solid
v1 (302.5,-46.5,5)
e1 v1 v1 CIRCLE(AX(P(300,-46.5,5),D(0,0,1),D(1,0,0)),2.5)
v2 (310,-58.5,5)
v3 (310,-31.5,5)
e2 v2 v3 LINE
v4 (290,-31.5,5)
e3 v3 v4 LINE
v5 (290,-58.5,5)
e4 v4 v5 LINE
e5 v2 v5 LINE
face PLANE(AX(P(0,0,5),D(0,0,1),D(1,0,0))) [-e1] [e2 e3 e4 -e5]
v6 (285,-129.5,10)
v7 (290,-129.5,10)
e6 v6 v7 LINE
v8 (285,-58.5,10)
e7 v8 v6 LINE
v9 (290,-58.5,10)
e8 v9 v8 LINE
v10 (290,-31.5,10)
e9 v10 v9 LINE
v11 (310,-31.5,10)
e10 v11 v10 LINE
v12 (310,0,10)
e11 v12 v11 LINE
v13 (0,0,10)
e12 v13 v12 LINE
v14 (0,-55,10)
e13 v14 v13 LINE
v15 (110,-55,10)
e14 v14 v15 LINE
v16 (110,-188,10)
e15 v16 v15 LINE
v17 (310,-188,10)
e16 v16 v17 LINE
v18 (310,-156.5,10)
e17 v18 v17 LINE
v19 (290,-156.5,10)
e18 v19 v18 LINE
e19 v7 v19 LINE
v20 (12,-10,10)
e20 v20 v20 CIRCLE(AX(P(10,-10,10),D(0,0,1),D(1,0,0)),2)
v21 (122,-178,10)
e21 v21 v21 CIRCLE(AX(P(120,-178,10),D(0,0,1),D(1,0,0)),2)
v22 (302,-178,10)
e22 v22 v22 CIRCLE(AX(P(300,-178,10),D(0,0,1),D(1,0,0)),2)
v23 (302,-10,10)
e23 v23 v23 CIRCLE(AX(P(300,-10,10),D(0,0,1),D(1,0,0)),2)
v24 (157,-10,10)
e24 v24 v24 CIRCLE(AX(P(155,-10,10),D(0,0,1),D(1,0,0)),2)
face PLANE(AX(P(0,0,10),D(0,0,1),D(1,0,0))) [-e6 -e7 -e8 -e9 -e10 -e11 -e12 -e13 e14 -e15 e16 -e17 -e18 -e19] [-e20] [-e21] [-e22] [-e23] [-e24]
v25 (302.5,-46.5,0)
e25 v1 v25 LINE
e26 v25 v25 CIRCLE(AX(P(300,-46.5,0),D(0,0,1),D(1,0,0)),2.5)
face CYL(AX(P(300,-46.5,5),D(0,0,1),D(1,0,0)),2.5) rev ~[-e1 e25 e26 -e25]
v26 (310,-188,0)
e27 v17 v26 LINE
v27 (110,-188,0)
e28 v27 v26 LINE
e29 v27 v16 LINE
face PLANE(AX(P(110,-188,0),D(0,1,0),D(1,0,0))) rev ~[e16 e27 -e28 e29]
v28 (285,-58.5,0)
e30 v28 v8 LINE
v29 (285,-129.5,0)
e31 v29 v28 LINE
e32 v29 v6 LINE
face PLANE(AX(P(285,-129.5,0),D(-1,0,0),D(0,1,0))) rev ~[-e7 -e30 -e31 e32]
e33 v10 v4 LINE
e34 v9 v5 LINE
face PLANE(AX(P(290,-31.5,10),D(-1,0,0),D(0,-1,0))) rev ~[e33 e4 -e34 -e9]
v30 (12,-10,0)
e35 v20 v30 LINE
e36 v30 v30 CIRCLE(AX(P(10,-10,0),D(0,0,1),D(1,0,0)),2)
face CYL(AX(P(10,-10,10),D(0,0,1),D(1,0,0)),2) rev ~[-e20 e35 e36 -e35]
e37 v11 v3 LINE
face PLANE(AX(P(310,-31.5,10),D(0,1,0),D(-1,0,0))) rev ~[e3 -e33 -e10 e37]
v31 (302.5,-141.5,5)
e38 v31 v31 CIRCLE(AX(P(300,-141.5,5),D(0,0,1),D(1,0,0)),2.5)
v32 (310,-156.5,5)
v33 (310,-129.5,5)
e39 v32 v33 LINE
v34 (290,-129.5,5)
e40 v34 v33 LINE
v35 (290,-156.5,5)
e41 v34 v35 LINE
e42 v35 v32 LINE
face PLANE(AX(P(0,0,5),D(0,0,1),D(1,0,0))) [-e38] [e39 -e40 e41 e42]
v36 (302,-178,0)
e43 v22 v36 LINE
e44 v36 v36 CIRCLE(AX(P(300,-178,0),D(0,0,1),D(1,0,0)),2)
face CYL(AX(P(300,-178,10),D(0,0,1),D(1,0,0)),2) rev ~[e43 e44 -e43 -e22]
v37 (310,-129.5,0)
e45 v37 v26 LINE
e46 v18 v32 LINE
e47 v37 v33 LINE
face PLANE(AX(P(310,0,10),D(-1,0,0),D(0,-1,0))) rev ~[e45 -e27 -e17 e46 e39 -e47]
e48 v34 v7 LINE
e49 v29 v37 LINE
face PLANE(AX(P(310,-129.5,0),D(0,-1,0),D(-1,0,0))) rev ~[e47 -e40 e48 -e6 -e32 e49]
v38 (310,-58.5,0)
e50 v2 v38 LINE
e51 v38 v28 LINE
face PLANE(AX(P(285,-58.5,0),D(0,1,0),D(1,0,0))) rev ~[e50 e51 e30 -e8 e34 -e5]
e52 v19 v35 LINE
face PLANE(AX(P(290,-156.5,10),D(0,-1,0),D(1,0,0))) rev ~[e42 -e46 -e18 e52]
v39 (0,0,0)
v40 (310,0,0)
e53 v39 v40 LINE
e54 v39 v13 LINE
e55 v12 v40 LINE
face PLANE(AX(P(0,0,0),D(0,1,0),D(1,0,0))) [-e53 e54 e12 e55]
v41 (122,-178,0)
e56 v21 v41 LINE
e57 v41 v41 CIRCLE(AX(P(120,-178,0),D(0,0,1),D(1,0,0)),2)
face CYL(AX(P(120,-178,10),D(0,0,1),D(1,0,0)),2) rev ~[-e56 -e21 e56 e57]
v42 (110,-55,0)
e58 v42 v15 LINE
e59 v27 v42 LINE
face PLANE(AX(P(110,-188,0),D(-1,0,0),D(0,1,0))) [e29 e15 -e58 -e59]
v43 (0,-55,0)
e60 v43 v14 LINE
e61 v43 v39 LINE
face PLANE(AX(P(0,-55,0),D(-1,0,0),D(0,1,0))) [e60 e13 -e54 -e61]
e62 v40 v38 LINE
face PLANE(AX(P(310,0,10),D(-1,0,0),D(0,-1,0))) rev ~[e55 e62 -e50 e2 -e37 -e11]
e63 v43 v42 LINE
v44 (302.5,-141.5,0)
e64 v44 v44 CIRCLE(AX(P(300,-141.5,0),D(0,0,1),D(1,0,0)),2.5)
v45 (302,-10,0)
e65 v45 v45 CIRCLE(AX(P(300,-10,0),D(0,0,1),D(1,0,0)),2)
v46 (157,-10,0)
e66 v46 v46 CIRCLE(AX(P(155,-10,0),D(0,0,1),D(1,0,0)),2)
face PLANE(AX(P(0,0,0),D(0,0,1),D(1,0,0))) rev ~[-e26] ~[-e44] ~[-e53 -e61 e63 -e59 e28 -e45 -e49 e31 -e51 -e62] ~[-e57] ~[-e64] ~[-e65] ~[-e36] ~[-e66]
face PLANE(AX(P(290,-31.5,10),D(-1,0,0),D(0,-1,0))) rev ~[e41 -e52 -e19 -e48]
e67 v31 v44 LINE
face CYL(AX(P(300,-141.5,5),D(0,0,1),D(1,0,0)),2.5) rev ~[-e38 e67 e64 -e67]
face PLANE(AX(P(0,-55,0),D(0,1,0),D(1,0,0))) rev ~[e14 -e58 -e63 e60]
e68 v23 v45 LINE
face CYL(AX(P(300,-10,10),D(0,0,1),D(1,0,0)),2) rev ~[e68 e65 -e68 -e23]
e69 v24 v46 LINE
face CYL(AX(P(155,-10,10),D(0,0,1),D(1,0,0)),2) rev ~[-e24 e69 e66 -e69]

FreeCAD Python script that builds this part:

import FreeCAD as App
import Part
import Sketcher
Q = App.Units.Quantity


def add_polygon(sketch, points):
    """Adds a closed chain of lines whose ends are joined by coincident constraints."""
    first, n = sketch.GeometryCount, len(points)
    for a, b in zip(points, points[1:] + points[:1]):
        sketch.addGeometry(Part.LineSegment(App.Vector(*a, 0), App.Vector(*b, 0)), False)
    for i in range(n):
        sketch.addConstraint(Sketcher.Constraint("Coincident", first + i, 2, first + (i + 1) % n, 1))

doc = App.newDocument("Part")
body = doc.addObject("PartDesign::Body", "Body")

# Sketch on XY plane
sketch1 = body.newObject("Sketcher::SketchObject", "Sketch")
sketch1.AttachmentSupport = (doc.getObject("XY_Plane"), [""])
sketch1.MapMode = "FlatFace"
add_polygon(sketch1, [(620, 0), (0, 0), (0, -55), (110, -55), (110, -188), (510, -188), (510, -55), (620, -55)])  # lines 0-7
sketch1.addConstraint([
    Sketcher.Constraint("Horizontal", 0),
    Sketcher.Constraint("Vertical", 1),
    Sketcher.Constraint("Horizontal", 2),
    Sketcher.Constraint("Vertical", 3),
    Sketcher.Constraint("Horizontal", 4),
    Sketcher.Constraint("Vertical", 5),
    Sketcher.Constraint("Horizontal", 6),
    Sketcher.Constraint("Vertical", 7),
    Sketcher.Constraint("Coincident", 0, 2, -1, 1),
    Sketcher.Constraint("Horizontal", 2, 2, 5, 2),
    Sketcher.Constraint("Equal", 2, 6),
    Sketcher.Constraint("DistanceX", 0, 2, 0, 1, Q("620 mm")),
    Sketcher.Constraint("DistanceX", 4, 1, 4, 2, Q("400 mm")),
    Sketcher.Constraint("DistanceY", 3, 2, 3, 1, Q("133 mm")),
    Sketcher.Constraint("DistanceY", 3, 2, -1, 1, Q("188 mm")),
])
pad1 = body.newObject("PartDesign::Pad", "Pad")
pad1.Profile = sketch1
pad1.Length = 10

# Sketch on XY plane
sketch2 = body.newObject("Sketcher::SketchObject", "Sketch001")
sketch2.AttachmentSupport = (doc.getObject("XY_Plane"), [""])
sketch2.MapMode = "FlatFace"
sketch2.AttachmentOffset = App.Placement(App.Vector(0, 0, 10), App.Rotation())
add_polygon(sketch2, [(620, -188), (620, 0), (310, 0), (310, -188)])  # lines 0-3
sketch2.addConstraint([
    Sketcher.Constraint("Vertical", 0),
    Sketcher.Constraint("Horizontal", 1),
    Sketcher.Constraint("Vertical", 2),
    Sketcher.Constraint("Horizontal", 3),
    Sketcher.Constraint("PointOnObject", 0, 2, -1),
    Sketcher.Constraint("DistanceX", 1, 2, 1, 1, Q("310 mm")),
    Sketcher.Constraint("DistanceY", 0, 1, 0, 2, Q("188 mm")),
    Sketcher.Constraint("DistanceX", -1, 1, 0, 2, Q("620 mm")),
])
pocket1 = body.newObject("PartDesign::Pocket", "Pocket")
pocket1.Profile = sketch2
pocket1.Type = "ThroughAll"

# Sketch on XY plane
sketch3 = body.newObject("Sketcher::SketchObject", "Sketch002")
sketch3.AttachmentSupport = (doc.getObject("XY_Plane"), [""])
sketch3.MapMode = "FlatFace"
sketch3.AttachmentOffset = App.Placement(App.Vector(0, 0, 10), App.Rotation())
sketch3.addGeometry([
    Part.Circle(App.Vector(10, -10, 0), App.Vector(0, 0, 1), 2),  # 0
    Part.Circle(App.Vector(155, -10, 0), App.Vector(0, 0, 1), 2),  # 1
    Part.Circle(App.Vector(300, -10, 0), App.Vector(0, 0, 1), 2),  # 2
    Part.Circle(App.Vector(120, -178, 0), App.Vector(0, 0, 1), 2),  # 3
    Part.Circle(App.Vector(300, -178, 0), App.Vector(0, 0, 1), 2),  # 4
], False)
sketch3.addConstraint([
    Sketcher.Constraint("Equal", 0, 1),
    Sketcher.Constraint("Equal", 1, 2),
    Sketcher.Constraint("Equal", 2, 3),
    Sketcher.Constraint("Equal", 3, 4),
    Sketcher.Constraint("Horizontal", 0, 3, 1, 3),
    Sketcher.Constraint("Horizontal", 1, 3, 2, 3),
    Sketcher.Constraint("Horizontal", 3, 3, 4, 3),
    Sketcher.Constraint("Vertical", 2, 3, 4, 3),
    Sketcher.Constraint("Diameter", 0, Q("4 mm")),
    Sketcher.Constraint("DistanceX", -1, 1, 0, 3, Q("10 mm")),
    Sketcher.Constraint("DistanceY", 0, 3, -1, 1, Q("10 mm")),
    Sketcher.Constraint("DistanceX", -1, 1, 1, 3, Q("155 mm")),
    Sketcher.Constraint("DistanceX", -1, 1, 2, 3, Q("300 mm")),
    Sketcher.Constraint("DistanceX", -1, 1, 3, 3, Q("120 mm")),
    Sketcher.Constraint("DistanceY", 3, 3, -1, 1, Q("178 mm")),
])
pocket2 = body.newObject("PartDesign::Pocket", "Pocket001")
pocket2.Profile = sketch3
pocket2.Type = "ThroughAll"

# Sketch on XY plane
sketch4 = body.newObject("Sketcher::SketchObject", "Sketch003")
sketch4.AttachmentSupport = (doc.getObject("XY_Plane"), [""])
sketch4.MapMode = "FlatFace"
sketch4.AttachmentOffset = App.Placement(App.Vector(0, 0, 10), App.Rotation())
add_polygon(sketch4, [(310, -156), (310, -32), (290, -32), (290, -156)])  # lines 0-3
sketch4.addConstraint([
    Sketcher.Constraint("Vertical", 0),
    Sketcher.Constraint("Horizontal", 1),
    Sketcher.Constraint("Vertical", 2),
    Sketcher.Constraint("Horizontal", 3),
    Sketcher.Constraint("DistanceX", 1, 2, 1, 1, Q("20 mm")),
    Sketcher.Constraint("DistanceY", 0, 1, 0, 2, Q("125 mm")),
    Sketcher.Constraint("DistanceX", -1, 1, 0, 2, Q("310 mm")),
    Sketcher.Constraint("DistanceY", 0, 2, -1, 1, Q("31.5 mm")),
])
pocket3 = body.newObject("PartDesign::Pocket", "Pocket002")
pocket3.Profile = sketch4
pocket3.Length = 5

# Sketch on XY plane
sketch5 = body.newObject("Sketcher::SketchObject", "Sketch004")
sketch5.AttachmentSupport = (doc.getObject("XY_Plane"), [""])
sketch5.MapMode = "FlatFace"
sketch5.AttachmentOffset = App.Placement(App.Vector(0, 0, 5), App.Rotation())
sketch5.addGeometry([
    Part.Circle(App.Vector(300, -46.5, 0), App.Vector(0, 0, 1), 2.5),
    Part.Circle(App.Vector(300, -141.5, 0), App.Vector(0, 0, 1), 2.5),
], False)
sketch5.addConstraint([
    Sketcher.Constraint("Equal", 0, 1),
    Sketcher.Constraint("Vertical", 0, 3, 1, 3),
    Sketcher.Constraint("Diameter", 0, Q("5 mm")),
    Sketcher.Constraint("DistanceY", 1, 3, 0, 3, Q("95 mm")),
    Sketcher.Constraint("DistanceX", -1, 1, 0, 3, Q("300 mm")),
    Sketcher.Constraint("DistanceY", 0, 3, -1, 1, Q("46.5 mm")),
])
pocket4 = body.newObject("PartDesign::Pocket", "Pocket003")
pocket4.Profile = sketch5
pocket4.Type = "ThroughAll"

# Sketch on XY plane
sketch6 = body.newObject("Sketcher::SketchObject", "Sketch005")
sketch6.AttachmentSupport = (doc.getObject("XY_Plane"), [""])
sketch6.MapMode = "FlatFace"
add_polygon(sketch6, [(285, -130), (285, -58), (335, -58), (335, -130)])  # lines 0-3
sketch6.addConstraint([
    Sketcher.Constraint("Vertical", 0),
    Sketcher.Constraint("Horizontal", 1),
    Sketcher.Constraint("Vertical", 2),
    Sketcher.Constraint("Horizontal", 3),
    Sketcher.Constraint("DistanceX", 1, 1, 1, 2, Q("50 mm")),
    Sketcher.Constraint("DistanceY", 0, 1, 0, 2, Q("71 mm")),
    Sketcher.Constraint("DistanceX", -1, 1, 0, 2, Q("285 mm")),
    Sketcher.Constraint("DistanceY", 0, 2, -1, 1, Q("58.5 mm")),
])
pocket5 = body.newObject("PartDesign::Pocket", "Pocket004")
pocket5.Profile = sketch6
pocket5.Type = "ThroughAll"
pocket5.Reversed = True

doc.recompute()
